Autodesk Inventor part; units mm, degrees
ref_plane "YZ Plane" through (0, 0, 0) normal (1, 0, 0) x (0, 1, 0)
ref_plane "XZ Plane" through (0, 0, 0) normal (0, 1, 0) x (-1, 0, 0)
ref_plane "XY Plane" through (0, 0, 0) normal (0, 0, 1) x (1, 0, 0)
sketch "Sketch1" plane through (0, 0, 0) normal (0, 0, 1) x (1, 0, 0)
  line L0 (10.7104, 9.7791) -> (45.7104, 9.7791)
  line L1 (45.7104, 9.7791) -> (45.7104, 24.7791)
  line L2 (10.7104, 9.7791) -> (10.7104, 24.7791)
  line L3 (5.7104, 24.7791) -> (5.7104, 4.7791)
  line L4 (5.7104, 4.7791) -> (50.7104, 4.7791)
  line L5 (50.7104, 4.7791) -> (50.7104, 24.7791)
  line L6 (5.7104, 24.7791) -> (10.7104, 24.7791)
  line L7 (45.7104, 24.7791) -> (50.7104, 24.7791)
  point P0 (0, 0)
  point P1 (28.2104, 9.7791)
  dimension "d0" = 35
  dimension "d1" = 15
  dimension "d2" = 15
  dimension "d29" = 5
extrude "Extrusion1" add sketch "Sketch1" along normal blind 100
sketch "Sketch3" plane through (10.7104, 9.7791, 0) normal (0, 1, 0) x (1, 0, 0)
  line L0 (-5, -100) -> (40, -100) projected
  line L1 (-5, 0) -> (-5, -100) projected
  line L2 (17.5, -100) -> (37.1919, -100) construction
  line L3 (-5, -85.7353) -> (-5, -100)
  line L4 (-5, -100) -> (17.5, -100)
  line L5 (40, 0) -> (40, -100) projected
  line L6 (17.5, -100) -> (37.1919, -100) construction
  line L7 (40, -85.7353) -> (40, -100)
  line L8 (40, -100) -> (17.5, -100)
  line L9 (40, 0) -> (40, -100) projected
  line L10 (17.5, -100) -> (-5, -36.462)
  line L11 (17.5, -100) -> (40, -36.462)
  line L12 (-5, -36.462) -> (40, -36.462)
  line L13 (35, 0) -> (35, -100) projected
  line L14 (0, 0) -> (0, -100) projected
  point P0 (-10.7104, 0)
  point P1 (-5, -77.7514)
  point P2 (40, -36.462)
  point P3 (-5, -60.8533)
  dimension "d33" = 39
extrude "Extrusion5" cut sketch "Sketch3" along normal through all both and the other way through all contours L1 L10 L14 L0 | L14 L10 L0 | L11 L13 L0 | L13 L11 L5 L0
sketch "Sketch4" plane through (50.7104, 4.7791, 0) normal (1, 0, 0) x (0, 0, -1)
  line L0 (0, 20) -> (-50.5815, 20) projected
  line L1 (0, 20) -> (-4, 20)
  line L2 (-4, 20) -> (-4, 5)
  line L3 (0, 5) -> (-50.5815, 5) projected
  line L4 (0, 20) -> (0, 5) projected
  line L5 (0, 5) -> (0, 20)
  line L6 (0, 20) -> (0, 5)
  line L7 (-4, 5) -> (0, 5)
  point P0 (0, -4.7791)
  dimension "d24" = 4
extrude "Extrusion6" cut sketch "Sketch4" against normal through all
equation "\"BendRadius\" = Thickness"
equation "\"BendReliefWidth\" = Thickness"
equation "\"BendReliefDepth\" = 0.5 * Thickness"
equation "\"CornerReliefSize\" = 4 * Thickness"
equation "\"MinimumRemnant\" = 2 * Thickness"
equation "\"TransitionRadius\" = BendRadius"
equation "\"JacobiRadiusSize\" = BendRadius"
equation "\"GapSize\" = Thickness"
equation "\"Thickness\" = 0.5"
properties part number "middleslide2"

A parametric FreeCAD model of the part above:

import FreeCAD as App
import Part
import Sketcher

V = App.Vector
Q = App.Units.Quantity


def add_polygon(sketch, points):
    """Adds a closed chain of lines whose ends are joined by coincident constraints."""
    first, n = sketch.GeometryCount, len(points)
    for a, b in zip(points, points[1:] + points[:1]):
        sketch.addGeometry(Part.LineSegment(App.Vector(*a, 0), App.Vector(*b, 0)), False)
    for i in range(n):
        sketch.addConstraint(Sketcher.Constraint("Coincident", first + i, 2, first + (i + 1) % n, 1))

doc = App.newDocument("Part")
body = doc.addObject("PartDesign::Body", "Body")

# Sketch on XY plane
sketch1 = body.newObject("Sketcher::SketchObject", "Sketch")
sketch1.AttachmentSupport = (doc.getObject("XY_Plane"), [""])
sketch1.MapMode = "FlatFace"
add_polygon(sketch1, [(46, 10), (11, 10), (11, 25), (6, 25), (6, 5), (51, 5), (51, 25), (46, 25)])  # lines 0-7
sketch1.addConstraint([
    Sketcher.Constraint("Horizontal", 0),
    Sketcher.Constraint("Vertical", 1),
    Sketcher.Constraint("Horizontal", 2),
    Sketcher.Constraint("Vertical", 3),
    Sketcher.Constraint("Horizontal", 4),
    Sketcher.Constraint("Vertical", 5),
    Sketcher.Constraint("Horizontal", 6),
    Sketcher.Constraint("Vertical", 7),
    Sketcher.Constraint("Horizontal", 2, 2, 5, 2),
    Sketcher.Constraint("Equal", 2, 6),
    Sketcher.Constraint("DistanceX", 0, 2, 0, 1, Q("35 mm")),
    Sketcher.Constraint("DistanceX", 2, 2, 2, 1, Q("5 mm")),
    Sketcher.Constraint("DistanceY", 1, 1, 1, 2, Q("15 mm")),
    Sketcher.Constraint("DistanceY", 3, 2, 0, 2, Q("5 mm")),
    Sketcher.Constraint("DistanceY", -1, 1, 0, 2, Q("9.779 mm")),
    Sketcher.Constraint("DistanceX", -1, 1, 0, 2, Q("10.7104 mm")),
])
pad1 = body.newObject("PartDesign::Pad", "Pad")
pad1.Profile = sketch1
pad1.Length = 100

# Sketch on XZ plane
sketch2 = body.newObject("Sketcher::SketchObject", "Sketch001")
sketch2.AttachmentSupport = (doc.getObject("XZ_Plane"), [""])
sketch2.MapMode = "FlatFace"
sketch2.AttachmentOffset = App.Placement(V(0, 0, -9.7791), App.Rotation())
add_polygon(sketch2, [(6, 100), (28, 100), (6, 36)])  # lines 0-2
add_polygon(sketch2, [(28, 100), (51, 100), (51, 36)])  # lines 3-5
sketch2.addConstraint([
    Sketcher.Constraint("Horizontal", 0),
    Sketcher.Constraint("Vertical", 2),
    Sketcher.Constraint("Horizontal", 3),
    Sketcher.Constraint("Vertical", 4),
    Sketcher.Constraint("Coincident", 5, 2, 0, 2),
    Sketcher.Constraint("Horizontal", 1, 2, 4, 2),
    Sketcher.Constraint("Equal", 0, 3),
    Sketcher.Constraint("DistanceX", 0, 1, 0, 2, Q("22.5 mm")),
    Sketcher.Constraint("DistanceY", -1, 1, 0, 2, Q("100 mm")),
    Sketcher.Constraint("Angle", 1, Q("-109.5 deg")),
    Sketcher.Constraint("DistanceX", -1, 1, 0, 2, Q("28.2104 mm")),
])
pocket1 = body.newObject("PartDesign::Pocket", "Pocket")
pocket1.Profile = sketch2
pocket1.Type = "ThroughAll"
pocket1.Midplane = True

# Sketch on YZ plane
sketch3 = body.newObject("Sketcher::SketchObject", "Sketch002")
sketch3.AttachmentSupport = (doc.getObject("YZ_Plane"), [""])
sketch3.MapMode = "FlatFace"
sketch3.AttachmentOffset = App.Placement(V(0, 0, 50.7104), App.Rotation())
add_polygon(sketch3, [(9.8, 0), (24.8, 0), (24.8, 4), (9.8, 4)])  # lines 0-3
sketch3.addConstraint([
    Sketcher.Constraint("Horizontal", 0),
    Sketcher.Constraint("Vertical", 1),
    Sketcher.Constraint("Horizontal", 2),
    Sketcher.Constraint("Vertical", 3),
    Sketcher.Constraint("PointOnObject", 0, 2, -1),
    Sketcher.Constraint("DistanceY", 1, 1, 1, 2, Q("4 mm")),
    Sketcher.Constraint("DistanceX", 0, 1, 0, 2, Q("15 mm")),
    Sketcher.Constraint("DistanceX", -1, 1, 0, 2, Q("24.779 mm")),
])
pocket2 = body.newObject("PartDesign::Pocket", "Pocket001")
pocket2.Profile = sketch3
pocket2.Type = "ThroughAll"

doc.recompute()
